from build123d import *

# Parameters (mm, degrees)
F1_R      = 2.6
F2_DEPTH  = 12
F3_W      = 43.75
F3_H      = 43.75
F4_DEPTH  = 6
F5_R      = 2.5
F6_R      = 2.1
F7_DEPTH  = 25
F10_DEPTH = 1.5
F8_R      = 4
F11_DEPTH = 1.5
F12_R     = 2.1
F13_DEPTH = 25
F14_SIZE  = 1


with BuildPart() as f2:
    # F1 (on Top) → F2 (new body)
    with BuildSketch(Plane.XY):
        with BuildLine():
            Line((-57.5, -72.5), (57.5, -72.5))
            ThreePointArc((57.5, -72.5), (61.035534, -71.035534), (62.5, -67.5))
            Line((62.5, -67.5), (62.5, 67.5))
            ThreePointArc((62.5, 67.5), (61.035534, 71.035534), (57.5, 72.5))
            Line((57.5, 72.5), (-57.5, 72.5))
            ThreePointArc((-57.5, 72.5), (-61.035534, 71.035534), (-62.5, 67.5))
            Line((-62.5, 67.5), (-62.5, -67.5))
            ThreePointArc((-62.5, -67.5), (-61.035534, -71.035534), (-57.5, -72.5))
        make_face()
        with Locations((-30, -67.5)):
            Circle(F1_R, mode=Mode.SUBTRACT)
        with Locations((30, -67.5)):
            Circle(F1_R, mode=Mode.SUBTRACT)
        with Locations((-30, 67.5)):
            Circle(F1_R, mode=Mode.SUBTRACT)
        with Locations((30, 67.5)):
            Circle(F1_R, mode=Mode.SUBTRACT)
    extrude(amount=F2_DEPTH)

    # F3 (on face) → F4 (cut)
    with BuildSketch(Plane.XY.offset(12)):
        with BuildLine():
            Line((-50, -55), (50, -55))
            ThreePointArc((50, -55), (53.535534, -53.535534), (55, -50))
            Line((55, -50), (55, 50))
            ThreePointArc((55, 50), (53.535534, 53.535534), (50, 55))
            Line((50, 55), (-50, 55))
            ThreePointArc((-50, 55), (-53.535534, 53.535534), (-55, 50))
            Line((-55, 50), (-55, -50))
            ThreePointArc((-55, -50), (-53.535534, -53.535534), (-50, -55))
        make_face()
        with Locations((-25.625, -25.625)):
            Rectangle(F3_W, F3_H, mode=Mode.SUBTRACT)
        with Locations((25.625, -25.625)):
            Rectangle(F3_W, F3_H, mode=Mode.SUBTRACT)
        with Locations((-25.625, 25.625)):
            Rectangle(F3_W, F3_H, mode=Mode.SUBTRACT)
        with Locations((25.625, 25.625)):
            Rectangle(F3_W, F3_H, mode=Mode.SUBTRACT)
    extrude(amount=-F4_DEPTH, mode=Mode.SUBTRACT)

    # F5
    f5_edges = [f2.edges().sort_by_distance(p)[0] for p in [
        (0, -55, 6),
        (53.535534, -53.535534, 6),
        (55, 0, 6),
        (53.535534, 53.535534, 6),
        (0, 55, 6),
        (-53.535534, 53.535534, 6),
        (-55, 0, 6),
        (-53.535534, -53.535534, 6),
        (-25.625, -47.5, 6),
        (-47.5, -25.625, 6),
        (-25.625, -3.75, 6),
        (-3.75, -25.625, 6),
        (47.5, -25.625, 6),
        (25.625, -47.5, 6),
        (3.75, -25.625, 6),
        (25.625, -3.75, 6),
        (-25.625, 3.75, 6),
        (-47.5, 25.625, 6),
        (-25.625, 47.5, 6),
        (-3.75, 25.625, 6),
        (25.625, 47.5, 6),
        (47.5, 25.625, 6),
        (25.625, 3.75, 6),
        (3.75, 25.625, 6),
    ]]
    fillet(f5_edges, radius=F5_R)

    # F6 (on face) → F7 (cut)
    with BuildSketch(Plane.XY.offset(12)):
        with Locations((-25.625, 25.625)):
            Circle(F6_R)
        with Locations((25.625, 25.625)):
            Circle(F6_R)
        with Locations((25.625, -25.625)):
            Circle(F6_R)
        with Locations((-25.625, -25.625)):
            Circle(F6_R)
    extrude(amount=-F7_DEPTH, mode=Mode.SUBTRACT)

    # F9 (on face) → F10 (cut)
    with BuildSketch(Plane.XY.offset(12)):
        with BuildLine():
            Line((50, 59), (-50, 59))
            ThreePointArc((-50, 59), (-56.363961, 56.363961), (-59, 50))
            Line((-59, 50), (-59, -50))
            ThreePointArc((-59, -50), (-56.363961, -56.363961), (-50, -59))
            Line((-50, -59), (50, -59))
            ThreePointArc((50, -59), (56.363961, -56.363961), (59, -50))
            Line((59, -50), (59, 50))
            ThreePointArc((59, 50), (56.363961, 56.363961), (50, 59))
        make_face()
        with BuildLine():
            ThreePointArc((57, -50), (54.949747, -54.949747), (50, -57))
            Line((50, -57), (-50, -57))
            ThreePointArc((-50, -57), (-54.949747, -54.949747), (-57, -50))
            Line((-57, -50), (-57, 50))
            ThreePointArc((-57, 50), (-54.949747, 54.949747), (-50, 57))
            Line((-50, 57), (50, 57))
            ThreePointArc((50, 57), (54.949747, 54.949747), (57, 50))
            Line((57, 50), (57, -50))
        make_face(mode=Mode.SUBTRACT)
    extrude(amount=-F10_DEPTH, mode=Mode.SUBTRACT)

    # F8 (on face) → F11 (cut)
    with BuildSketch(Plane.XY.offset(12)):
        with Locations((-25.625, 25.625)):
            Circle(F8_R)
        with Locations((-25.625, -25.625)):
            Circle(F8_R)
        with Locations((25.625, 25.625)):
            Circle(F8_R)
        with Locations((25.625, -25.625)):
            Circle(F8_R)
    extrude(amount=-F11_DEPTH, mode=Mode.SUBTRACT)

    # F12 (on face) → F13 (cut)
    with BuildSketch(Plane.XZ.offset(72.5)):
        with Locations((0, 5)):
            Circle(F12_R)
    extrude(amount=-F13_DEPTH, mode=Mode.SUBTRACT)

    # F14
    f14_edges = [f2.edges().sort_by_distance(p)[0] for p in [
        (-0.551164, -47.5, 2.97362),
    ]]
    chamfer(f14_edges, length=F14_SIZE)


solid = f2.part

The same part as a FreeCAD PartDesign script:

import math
import FreeCAD as App
import Part
import Sketcher
from FreeCAD import Vector
Q = App.Units.Quantity


def edges_at(feature, points):
    """Names of the edges that pass closest to the given points."""
    edges = feature.Shape.Edges
    near = lambda p: min(range(len(edges)), key=lambda i: edges[i].distToShape(Part.Vertex(*p))[0])
    return sorted({f"Edge{near(p) + 1}" for p in points})

doc = App.newDocument("Part")
body = doc.addObject("PartDesign::Body", "Body")

# Sketch on XY plane
sketch1 = body.newObject("Sketcher::SketchObject", "Sketch")
sketch1.AttachmentSupport = (doc.getObject("XY_Plane"), [""])
sketch1.MapMode = "FlatFace"
sketch1.addGeometry(Part.LineSegment(Vector(-57.5, -72.5, 0), Vector(57.5, -72.5, 0)), False)
sketch1.addGeometry(Part.ArcOfCircle(Part.Circle(Vector(57.5, -67.5, 0), Vector(0, 0, 1), 5), math.radians(-90.000004), math.radians(0.000004)), False)
sketch1.addGeometry(Part.LineSegment(Vector(62.5, -67.5, 0), Vector(62.5, 67.5, 0)), False)
sketch1.addGeometry(Part.ArcOfCircle(Part.Circle(Vector(57.5, 67.5, 0), Vector(0, 0, 1), 5), math.radians(-0.000004), math.radians(90.000004)), False)
sketch1.addGeometry(Part.LineSegment(Vector(57.5, 72.5, 0), Vector(-57.5, 72.5, 0)), False)
sketch1.addGeometry(Part.ArcOfCircle(Part.Circle(Vector(-57.5, 67.5, 0), Vector(0, 0, 1), 5), math.radians(89.999996), math.radians(180.000004)), False)
sketch1.addGeometry(Part.LineSegment(Vector(-62.5, 67.5, 0), Vector(-62.5, -67.5, 0)), False)
sketch1.addGeometry(Part.ArcOfCircle(Part.Circle(Vector(-57.5, -67.5, 0), Vector(0, 0, 1), 5), math.radians(179.999996), math.radians(270.000004)), False)
sketch1.addGeometry(Part.Circle(Vector(-30, -67.5, 0), Vector(0, 0, 1), 2.6), False)
sketch1.addGeometry(Part.Circle(Vector(30, -67.5, 0), Vector(0, 0, 1), 2.6), False)
sketch1.addGeometry(Part.Circle(Vector(-30, 67.5, 0), Vector(0, 0, 1), 2.6), False)
sketch1.addGeometry(Part.Circle(Vector(30, 67.5, 0), Vector(0, 0, 1), 2.6), False)
sketch1.addConstraint(Sketcher.Constraint("Tangent", 0, 2, 1, 1))
sketch1.addConstraint(Sketcher.Constraint("Tangent", 1, 2, 2, 1))
sketch1.addConstraint(Sketcher.Constraint("Tangent", 2, 2, 3, 1))
sketch1.addConstraint(Sketcher.Constraint("Tangent", 3, 2, 4, 1))
sketch1.addConstraint(Sketcher.Constraint("Tangent", 4, 2, 5, 1))
sketch1.addConstraint(Sketcher.Constraint("Tangent", 5, 2, 6, 1))
sketch1.addConstraint(Sketcher.Constraint("Tangent", 6, 2, 7, 1))
sketch1.addConstraint(Sketcher.Constraint("Tangent", 7, 2, 0, 1))
sketch1.addConstraint(Sketcher.Constraint("Horizontal", 0))
sketch1.addConstraint(Sketcher.Constraint("Vertical", 2))
sketch1.addConstraint(Sketcher.Constraint("Horizontal", 4))
sketch1.addConstraint(Sketcher.Constraint("Vertical", 6))
sketch1.addConstraint(Sketcher.Constraint("Equal", 1, 3))
sketch1.addConstraint(Sketcher.Constraint("Equal", 3, 5))
sketch1.addConstraint(Sketcher.Constraint("Equal", 5, 7))
sketch1.addConstraint(Sketcher.Constraint("Equal", 8, 9))
sketch1.addConstraint(Sketcher.Constraint("Equal", 9, 10))
sketch1.addConstraint(Sketcher.Constraint("Equal", 10, 11))
sketch1.addConstraint(Sketcher.Constraint("Symmetric", 1, 3, 5, 3, -1, 1))
sketch1.addConstraint(Sketcher.Constraint("Symmetric", 9, 3, 10, 3, -1, 1))
sketch1.addConstraint(Sketcher.Constraint("Symmetric", 8, 3, 11, 3, -1, 1))
sketch1.addConstraint(Sketcher.Constraint("Symmetric", 8, 3, 9, 3, -2))
sketch1.addConstraint(Sketcher.Constraint("Horizontal", 7, 3, 8, 3))
sketch1.addConstraint(Sketcher.Constraint("Radius", 1, Q("5 mm")))
sketch1.addConstraint(Sketcher.Constraint("Diameter", 8, Q("5.2 mm")))
sketch1.addConstraint(Sketcher.Constraint("DistanceX", 0, 1, 0, 2, Q("115 mm")))
sketch1.addConstraint(Sketcher.Constraint("DistanceY", 2, 1, 2, 2, Q("135 mm")))
sketch1.addConstraint(Sketcher.Constraint("DistanceX", 8, 3, -1, 1, Q("30 mm")))
pad1 = body.newObject("PartDesign::Pad", "Pad")
pad1.Profile = sketch1
pad1.Length = 12

# Sketch on XY plane
sketch2 = body.newObject("Sketcher::SketchObject", "Sketch001")
sketch2.AttachmentSupport = (doc.getObject("XY_Plane"), [""])
sketch2.MapMode = "FlatFace"
sketch2.AttachmentOffset = App.Placement(Vector(0, 0, 12), App.Rotation())
sketch2.addGeometry(Part.LineSegment(Vector(-50, -55, 0), Vector(50, -55, 0)), False)
sketch2.addGeometry(Part.ArcOfCircle(Part.Circle(Vector(50, -50, 0), Vector(0, 0, 1), 5), math.radians(-90.000004), math.radians(0.000004)), False)
sketch2.addGeometry(Part.LineSegment(Vector(55, -50, 0), Vector(55, 50, 0)), False)
sketch2.addGeometry(Part.ArcOfCircle(Part.Circle(Vector(50, 50, 0), Vector(0, 0, 1), 5), math.radians(-0.000004), math.radians(90.000004)), False)
sketch2.addGeometry(Part.LineSegment(Vector(50, 55, 0), Vector(-50, 55, 0)), False)
sketch2.addGeometry(Part.ArcOfCircle(Part.Circle(Vector(-50, 50, 0), Vector(0, 0, 1), 5), math.radians(89.999996), math.radians(180.000004)), False)
sketch2.addGeometry(Part.LineSegment(Vector(-55, 50, 0), Vector(-55, -50, 0)), False)
sketch2.addGeometry(Part.ArcOfCircle(Part.Circle(Vector(-50, -50, 0), Vector(0, 0, 1), 5), math.radians(179.999996), math.radians(270.000004)), False)
sketch2.addGeometry(Part.LineSegment(Vector(-3.75, -47.5, 0), Vector(-47.5, -47.5, 0)), False)
sketch2.addGeometry(Part.LineSegment(Vector(-47.5, -47.5, 0), Vector(-47.5, -3.75, 0)), False)
sketch2.addGeometry(Part.LineSegment(Vector(-47.5, -3.75, 0), Vector(-3.75, -3.75, 0)), False)
sketch2.addGeometry(Part.LineSegment(Vector(-3.75, -3.75, 0), Vector(-3.75, -47.5, 0)), False)
sketch2.addGeometry(Part.LineSegment(Vector(47.5, -47.5, 0), Vector(3.75, -47.5, 0)), False)
sketch2.addGeometry(Part.LineSegment(Vector(3.75, -47.5, 0), Vector(3.75, -3.75, 0)), False)
sketch2.addGeometry(Part.LineSegment(Vector(3.75, -3.75, 0), Vector(47.5, -3.75, 0)), False)
sketch2.addGeometry(Part.LineSegment(Vector(47.5, -3.75, 0), Vector(47.5, -47.5, 0)), False)
sketch2.addGeometry(Part.LineSegment(Vector(-3.75, 3.75, 0), Vector(-47.5, 3.75, 0)), False)
sketch2.addGeometry(Part.LineSegment(Vector(-47.5, 3.75, 0), Vector(-47.5, 47.5, 0)), False)
sketch2.addGeometry(Part.LineSegment(Vector(-47.5, 47.5, 0), Vector(-3.75, 47.5, 0)), False)
sketch2.addGeometry(Part.LineSegment(Vector(-3.75, 47.5, 0), Vector(-3.75, 3.75, 0)), False)
sketch2.addGeometry(Part.LineSegment(Vector(47.5, 3.75, 0), Vector(3.75, 3.75, 0)), False)
sketch2.addGeometry(Part.LineSegment(Vector(3.75, 3.75, 0), Vector(3.75, 47.5, 0)), False)
sketch2.addGeometry(Part.LineSegment(Vector(3.75, 47.5, 0), Vector(47.5, 47.5, 0)), False)
sketch2.addGeometry(Part.LineSegment(Vector(47.5, 47.5, 0), Vector(47.5, 3.75, 0)), False)
sketch2.addConstraint(Sketcher.Constraint("Tangent", 0, 2, 1, 1))
sketch2.addConstraint(Sketcher.Constraint("Tangent", 1, 2, 2, 1))
sketch2.addConstraint(Sketcher.Constraint("Tangent", 2, 2, 3, 1))
sketch2.addConstraint(Sketcher.Constraint("Tangent", 3, 2, 4, 1))
sketch2.addConstraint(Sketcher.Constraint("Tangent", 4, 2, 5, 1))
sketch2.addConstraint(Sketcher.Constraint("Tangent", 5, 2, 6, 1))
sketch2.addConstraint(Sketcher.Constraint("Tangent", 6, 2, 7, 1))
sketch2.addConstraint(Sketcher.Constraint("Tangent", 7, 2, 0, 1))
sketch2.addConstraint(Sketcher.Constraint("Coincident", 8, 2, 9, 1))
sketch2.addConstraint(Sketcher.Constraint("Coincident", 9, 2, 10, 1))
sketch2.addConstraint(Sketcher.Constraint("Coincident", 10, 2, 11, 1))
sketch2.addConstraint(Sketcher.Constraint("Coincident", 11, 2, 8, 1))
sketch2.addConstraint(Sketcher.Constraint("Coincident", 12, 2, 13, 1))
sketch2.addConstraint(Sketcher.Constraint("Coincident", 13, 2, 14, 1))
sketch2.addConstraint(Sketcher.Constraint("Coincident", 14, 2, 15, 1))
sketch2.addConstraint(Sketcher.Constraint("Coincident", 15, 2, 12, 1))
sketch2.addConstraint(Sketcher.Constraint("Coincident", 16, 2, 17, 1))
sketch2.addConstraint(Sketcher.Constraint("Coincident", 17, 2, 18, 1))
sketch2.addConstraint(Sketcher.Constraint("Coincident", 18, 2, 19, 1))
sketch2.addConstraint(Sketcher.Constraint("Coincident", 19, 2, 16, 1))
sketch2.addConstraint(Sketcher.Constraint("Coincident", 20, 2, 21, 1))
sketch2.addConstraint(Sketcher.Constraint("Coincident", 21, 2, 22, 1))
sketch2.addConstraint(Sketcher.Constraint("Coincident", 22, 2, 23, 1))
sketch2.addConstraint(Sketcher.Constraint("Coincident", 23, 2, 20, 1))
sketch2.addConstraint(Sketcher.Constraint("Horizontal", 0))
sketch2.addConstraint(Sketcher.Constraint("Vertical", 2))
sketch2.addConstraint(Sketcher.Constraint("Horizontal", 4))
sketch2.addConstraint(Sketcher.Constraint("Vertical", 6))
sketch2.addConstraint(Sketcher.Constraint("Horizontal", 8))
sketch2.addConstraint(Sketcher.Constraint("Vertical", 9))
sketch2.addConstraint(Sketcher.Constraint("Horizontal", 10))
sketch2.addConstraint(Sketcher.Constraint("Vertical", 11))
sketch2.addConstraint(Sketcher.Constraint("Horizontal", 12))
sketch2.addConstraint(Sketcher.Constraint("Vertical", 13))
sketch2.addConstraint(Sketcher.Constraint("Horizontal", 14))
sketch2.addConstraint(Sketcher.Constraint("Vertical", 15))
sketch2.addConstraint(Sketcher.Constraint("Horizontal", 16))
sketch2.addConstraint(Sketcher.Constraint("Vertical", 17))
sketch2.addConstraint(Sketcher.Constraint("Horizontal", 18))
sketch2.addConstraint(Sketcher.Constraint("Vertical", 19))
sketch2.addConstraint(Sketcher.Constraint("Horizontal", 20))
sketch2.addConstraint(Sketcher.Constraint("Vertical", 21))
sketch2.addConstraint(Sketcher.Constraint("Horizontal", 22))
sketch2.addConstraint(Sketcher.Constraint("Vertical", 23))
sketch2.addConstraint(Sketcher.Constraint("Equal", 1, 3))
sketch2.addConstraint(Sketcher.Constraint("Equal", 3, 5))
sketch2.addConstraint(Sketcher.Constraint("Equal", 5, 7))
sketch2.addConstraint(Sketcher.Constraint("Symmetric", 1, 3, 5, 3, -1, 1))
sketch2.addConstraint(Sketcher.Constraint("Symmetric", 14, 2, 16, 2, -1, 1))
sketch2.addConstraint(Sketcher.Constraint("Symmetric", 12, 2, 18, 2, -1, 1))
sketch2.addConstraint(Sketcher.Constraint("Symmetric", 10, 2, 20, 2, -1, 1))
sketch2.addConstraint(Sketcher.Constraint("Symmetric", 8, 2, 22, 2, -1, 1))
sketch2.addConstraint(Sketcher.Constraint("Symmetric", 11, 2, 12, 2, -2))
sketch2.addConstraint(Sketcher.Constraint("Symmetric", 9, 2, 14, 2, -2))
sketch2.addConstraint(Sketcher.Constraint("Equal", 4, 2))
sketch2.addConstraint(Sketcher.Constraint("Equal", 22, 9))
sketch2.addConstraint(Sketcher.Constraint("Radius", 1, Q("5 mm")))
sketch2.addConstraint(Sketcher.Constraint("DistanceX", 0, 1, 0, 2, Q("100 mm")))
sketch2.addConstraint(Sketcher.Constraint("DistanceX", 8, 2, 8, 1, Q("43.75 mm")))
sketch2.addConstraint(Sketcher.Constraint("DistanceX", 8, 2, -1, 1, Q("47.5 mm")))
sketch2.addConstraint(Sketcher.Constraint("DistanceY", 8, 2, -1, 1, Q("47.5 mm")))
pocket1 = body.newObject("PartDesign::Pocket", "Pocket")
pocket1.Profile = sketch2
pocket1.Length = 6
doc.recompute()

fillet = body.newObject("PartDesign::Fillet", "Fillet")
fillet.Base = (pocket1, edges_at(pocket1, [
    (0, -55, 6),
    (53.536, -53.536, 6),
    (55, 0, 6),
    (53.536, 53.536, 6),
    (0, 55, 6),
    (-53.536, 53.536, 6),
    (-55, 0, 6),
    (-53.536, -53.536, 6),
    (-25.625, -47.5, 6),
    (-47.5, -25.625, 6),
    (-25.625, -3.75, 6),
    (-3.75, -25.625, 6),
    (47.5, -25.625, 6),
    (25.625, -47.5, 6),
    (3.75, -25.625, 6),
    (25.625, -3.75, 6),
    (-25.625, 3.75, 6),
    (-47.5, 25.625, 6),
    (-25.625, 47.5, 6),
    (-3.75, 25.625, 6),
    (25.625, 47.5, 6),
    (47.5, 25.625, 6),
    (25.625, 3.75, 6),
    (3.75, 25.625, 6),
]))
fillet.Radius = 2.5

# Sketch on XY plane
sketch3 = body.newObject("Sketcher::SketchObject", "Sketch002")
sketch3.AttachmentSupport = (doc.getObject("XY_Plane"), [""])
sketch3.MapMode = "FlatFace"
sketch3.AttachmentOffset = App.Placement(Vector(0, 0, 12), App.Rotation())
sketch3.addGeometry(Part.Circle(Vector(-25.625, 25.625, 0), Vector(0, 0, 1), 2.1), False)
sketch3.addGeometry(Part.Circle(Vector(25.625, 25.625, 0), Vector(0, 0, 1), 2.1), False)
sketch3.addGeometry(Part.Circle(Vector(25.625, -25.625, 0), Vector(0, 0, 1), 2.1), False)
sketch3.addGeometry(Part.Circle(Vector(-25.625, -25.625, 0), Vector(0, 0, 1), 2.1), False)
sketch3.addConstraint(Sketcher.Constraint("Equal", 0, 1))
sketch3.addConstraint(Sketcher.Constraint("Equal", 1, 2))
sketch3.addConstraint(Sketcher.Constraint("Equal", 2, 3))
sketch3.addConstraint(Sketcher.Constraint("Symmetric", 0, 3, 2, 3, -1, 1))
sketch3.addConstraint(Sketcher.Constraint("Symmetric", 1, 3, 3, 3, -1, 1))
sketch3.addConstraint(Sketcher.Constraint("Symmetric", 0, 3, 1, 3, -2))
sketch3.addConstraint(Sketcher.Constraint("Diameter", 0, Q("4.2 mm")))
sketch3.addConstraint(Sketcher.Constraint("DistanceX", 0, 3, 1, 3, Q("51.25 mm")))
sketch3.addConstraint(Sketcher.Constraint("DistanceY", 2, 3, 1, 3, Q("51.25 mm")))
pocket2 = body.newObject("PartDesign::Pocket", "Pocket001")
pocket2.Profile = sketch3
pocket2.Length = 25

# Sketch on XY plane
sketch4 = body.newObject("Sketcher::SketchObject", "Sketch003")
sketch4.AttachmentSupport = (doc.getObject("XY_Plane"), [""])
sketch4.MapMode = "FlatFace"
sketch4.AttachmentOffset = App.Placement(Vector(0, 0, 12), App.Rotation())
sketch4.addGeometry(Part.LineSegment(Vector(50, 59, 0), Vector(-50, 59, 0)), False)
sketch4.addGeometry(Part.ArcOfCircle(Part.Circle(Vector(-50, 50, 0), Vector(0, 0, 1), 9), math.radians(90.000001), math.radians(179.999999)), False)
sketch4.addGeometry(Part.LineSegment(Vector(-59, 50, 0), Vector(-59, -50, 0)), False)
sketch4.addGeometry(Part.ArcOfCircle(Part.Circle(Vector(-50, -50, 0), Vector(0, 0, 1), 9), math.radians(-179.999999), math.radians(-90.000001)), False)
sketch4.addGeometry(Part.LineSegment(Vector(-50, -59, 0), Vector(50, -59, 0)), False)
sketch4.addGeometry(Part.ArcOfCircle(Part.Circle(Vector(50, -50, 0), Vector(0, 0, 1), 9), math.radians(-89.999999), math.radians(-0.000001)), False)
sketch4.addGeometry(Part.LineSegment(Vector(59, -50, 0), Vector(59, 50, 0)), False)
sketch4.addGeometry(Part.ArcOfCircle(Part.Circle(Vector(50, 50, 0), Vector(0, 0, 1), 9), math.radians(0.000001), math.radians(89.999999)), False)
sketch4.addGeometry(Part.LineSegment(Vector(57, 50, 0), Vector(57, -50, 0)), False)
sketch4.addGeometry(Part.ArcOfCircle(Part.Circle(Vector(49.999998, -49.999998, 0), Vector(0, 0, 1), 7.000002), math.radians(-89.999987), math.radians(-0.000013)), False)
sketch4.addGeometry(Part.LineSegment(Vector(50, -57, 0), Vector(-50, -57, 0)), False)
sketch4.addGeometry(Part.ArcOfCircle(Part.Circle(Vector(-49.999998, -49.999998, 0), Vector(0, 0, 1), 7.000002), math.radians(-179.999987), math.radians(-90.000013)), False)
sketch4.addGeometry(Part.LineSegment(Vector(-57, -50, 0), Vector(-57, 50, 0)), False)
sketch4.addGeometry(Part.ArcOfCircle(Part.Circle(Vector(-49.999998, 49.999998, 0), Vector(0, 0, 1), 7.000002), math.radians(90.000013), math.radians(179.999987)), False)
sketch4.addGeometry(Part.LineSegment(Vector(-50, 57, 0), Vector(50, 57, 0)), False)
sketch4.addGeometry(Part.ArcOfCircle(Part.Circle(Vector(49.999998, 49.999998, 0), Vector(0, 0, 1), 7.000002), math.radians(0.000013), math.radians(89.999987)), False)
sketch4.addConstraint(Sketcher.Constraint("Tangent", 0, 2, 1, 1))
sketch4.addConstraint(Sketcher.Constraint("Tangent", 1, 2, 2, 1))
sketch4.addConstraint(Sketcher.Constraint("Tangent", 2, 2, 3, 1))
sketch4.addConstraint(Sketcher.Constraint("Tangent", 3, 2, 4, 1))
sketch4.addConstraint(Sketcher.Constraint("Tangent", 4, 2, 5, 1))
sketch4.addConstraint(Sketcher.Constraint("Tangent", 5, 2, 6, 1))
sketch4.addConstraint(Sketcher.Constraint("Tangent", 6, 2, 7, 1))
sketch4.addConstraint(Sketcher.Constraint("Tangent", 7, 2, 0, 1))
sketch4.addConstraint(Sketcher.Constraint("Tangent", 8, 2, 9, 2))
sketch4.addConstraint(Sketcher.Constraint("Tangent", 9, 1, 10, 1))
sketch4.addConstraint(Sketcher.Constraint("Tangent", 10, 2, 11, 2))
sketch4.addConstraint(Sketcher.Constraint("Tangent", 11, 1, 12, 1))
sketch4.addConstraint(Sketcher.Constraint("Tangent", 12, 2, 13, 2))
sketch4.addConstraint(Sketcher.Constraint("Tangent", 13, 1, 14, 1))
sketch4.addConstraint(Sketcher.Constraint("Tangent", 14, 2, 15, 2))
sketch4.addConstraint(Sketcher.Constraint("Tangent", 15, 1, 8, 1))
sketch4.addConstraint(Sketcher.Constraint("Horizontal", 0))
sketch4.addConstraint(Sketcher.Constraint("Vertical", 2))
sketch4.addConstraint(Sketcher.Constraint("Horizontal", 4))
sketch4.addConstraint(Sketcher.Constraint("Vertical", 6))
sketch4.addConstraint(Sketcher.Constraint("Vertical", 8))
sketch4.addConstraint(Sketcher.Constraint("Horizontal", 10))
sketch4.addConstraint(Sketcher.Constraint("Vertical", 12))
sketch4.addConstraint(Sketcher.Constraint("Horizontal", 14))
sketch4.addConstraint(Sketcher.Constraint("Coincident", 9, 3, 5, 3))
sketch4.addConstraint(Sketcher.Constraint("Coincident", 11, 3, 3, 3))
sketch4.addConstraint(Sketcher.Constraint("Coincident", 13, 3, 1, 3))
sketch4.addConstraint(Sketcher.Constraint("Equal", 1, 3))
sketch4.addConstraint(Sketcher.Constraint("Equal", 3, 5))
sketch4.addConstraint(Sketcher.Constraint("Equal", 5, 7))
sketch4.addConstraint(Sketcher.Constraint("Equal", 13, 15))
sketch4.addConstraint(Sketcher.Constraint("Symmetric", 1, 3, 5, 3, -1, 1))
sketch4.addConstraint(Sketcher.Constraint("Equal", 14, 2))
sketch4.addConstraint(Sketcher.Constraint("Radius", 1, Q("9 mm")))
sketch4.addConstraint(Sketcher.Constraint("Radius", 9, Q("7.000002 mm")))
sketch4.addConstraint(Sketcher.Constraint("DistanceX", 0, 2, 0, 1, Q("100 mm")))
pocket3 = body.newObject("PartDesign::Pocket", "Pocket002")
pocket3.Profile = sketch4
pocket3.Length = 1.5

# Sketch on XY plane
sketch5 = body.newObject("Sketcher::SketchObject", "Sketch004")
sketch5.AttachmentSupport = (doc.getObject("XY_Plane"), [""])
sketch5.MapMode = "FlatFace"
sketch5.AttachmentOffset = App.Placement(Vector(0, 0, 12), App.Rotation())
sketch5.addGeometry(Part.Circle(Vector(-25.625, 25.625, 0), Vector(0, 0, 1), 4), False)
sketch5.addGeometry(Part.Circle(Vector(-25.625, -25.625, 0), Vector(0, 0, 1), 4), False)
sketch5.addGeometry(Part.Circle(Vector(25.625, 25.625, 0), Vector(0, 0, 1), 4), False)
sketch5.addGeometry(Part.Circle(Vector(25.625, -25.625, 0), Vector(0, 0, 1), 4), False)
sketch5.addConstraint(Sketcher.Constraint("Equal", 0, 1))
sketch5.addConstraint(Sketcher.Constraint("Equal", 1, 2))
sketch5.addConstraint(Sketcher.Constraint("Equal", 2, 3))
sketch5.addConstraint(Sketcher.Constraint("Symmetric", 1, 3, 2, 3, -1, 1))
sketch5.addConstraint(Sketcher.Constraint("Symmetric", 0, 3, 3, 3, -1, 1))
sketch5.addConstraint(Sketcher.Constraint("Symmetric", 0, 3, 2, 3, -2))
sketch5.addConstraint(Sketcher.Constraint("Diameter", 0, Q("8 mm")))
sketch5.addConstraint(Sketcher.Constraint("DistanceY", 1, 3, 0, 3, Q("51.25 mm")))
sketch5.addConstraint(Sketcher.Constraint("DistanceX", 0, 3, 2, 3, Q("51.25 mm")))
pocket4 = body.newObject("PartDesign::Pocket", "Pocket003")
pocket4.Profile = sketch5
pocket4.Length = 1.5

# Sketch on XZ plane
sketch6 = body.newObject("Sketcher::SketchObject", "Sketch005")
sketch6.AttachmentSupport = (doc.getObject("XZ_Plane"), [""])
sketch6.MapMode = "FlatFace"
sketch6.AttachmentOffset = App.Placement(Vector(0, 0, 72.5), App.Rotation())
sketch6.addGeometry(Part.Circle(Vector(0, 5, 0), Vector(0, 0, 1), 2.1), False)
sketch6.addConstraint(Sketcher.Constraint("PointOnObject", 0, 3, -2))
sketch6.addConstraint(Sketcher.Constraint("Diameter", 0, Q("4.2 mm")))
sketch6.addConstraint(Sketcher.Constraint("DistanceY", -1, 1, 0, 3, Q("5 mm")))
pocket5 = body.newObject("PartDesign::Pocket", "Pocket004")
pocket5.Profile = sketch6
pocket5.Length = 25
doc.recompute()

chamfer = body.newObject("PartDesign::Chamfer", "Chamfer")
chamfer.Base = (pocket5, edges_at(pocket5, [(-0.551, -47.5, 2.974)]))
chamfer.Size = 1

doc.recompute()
